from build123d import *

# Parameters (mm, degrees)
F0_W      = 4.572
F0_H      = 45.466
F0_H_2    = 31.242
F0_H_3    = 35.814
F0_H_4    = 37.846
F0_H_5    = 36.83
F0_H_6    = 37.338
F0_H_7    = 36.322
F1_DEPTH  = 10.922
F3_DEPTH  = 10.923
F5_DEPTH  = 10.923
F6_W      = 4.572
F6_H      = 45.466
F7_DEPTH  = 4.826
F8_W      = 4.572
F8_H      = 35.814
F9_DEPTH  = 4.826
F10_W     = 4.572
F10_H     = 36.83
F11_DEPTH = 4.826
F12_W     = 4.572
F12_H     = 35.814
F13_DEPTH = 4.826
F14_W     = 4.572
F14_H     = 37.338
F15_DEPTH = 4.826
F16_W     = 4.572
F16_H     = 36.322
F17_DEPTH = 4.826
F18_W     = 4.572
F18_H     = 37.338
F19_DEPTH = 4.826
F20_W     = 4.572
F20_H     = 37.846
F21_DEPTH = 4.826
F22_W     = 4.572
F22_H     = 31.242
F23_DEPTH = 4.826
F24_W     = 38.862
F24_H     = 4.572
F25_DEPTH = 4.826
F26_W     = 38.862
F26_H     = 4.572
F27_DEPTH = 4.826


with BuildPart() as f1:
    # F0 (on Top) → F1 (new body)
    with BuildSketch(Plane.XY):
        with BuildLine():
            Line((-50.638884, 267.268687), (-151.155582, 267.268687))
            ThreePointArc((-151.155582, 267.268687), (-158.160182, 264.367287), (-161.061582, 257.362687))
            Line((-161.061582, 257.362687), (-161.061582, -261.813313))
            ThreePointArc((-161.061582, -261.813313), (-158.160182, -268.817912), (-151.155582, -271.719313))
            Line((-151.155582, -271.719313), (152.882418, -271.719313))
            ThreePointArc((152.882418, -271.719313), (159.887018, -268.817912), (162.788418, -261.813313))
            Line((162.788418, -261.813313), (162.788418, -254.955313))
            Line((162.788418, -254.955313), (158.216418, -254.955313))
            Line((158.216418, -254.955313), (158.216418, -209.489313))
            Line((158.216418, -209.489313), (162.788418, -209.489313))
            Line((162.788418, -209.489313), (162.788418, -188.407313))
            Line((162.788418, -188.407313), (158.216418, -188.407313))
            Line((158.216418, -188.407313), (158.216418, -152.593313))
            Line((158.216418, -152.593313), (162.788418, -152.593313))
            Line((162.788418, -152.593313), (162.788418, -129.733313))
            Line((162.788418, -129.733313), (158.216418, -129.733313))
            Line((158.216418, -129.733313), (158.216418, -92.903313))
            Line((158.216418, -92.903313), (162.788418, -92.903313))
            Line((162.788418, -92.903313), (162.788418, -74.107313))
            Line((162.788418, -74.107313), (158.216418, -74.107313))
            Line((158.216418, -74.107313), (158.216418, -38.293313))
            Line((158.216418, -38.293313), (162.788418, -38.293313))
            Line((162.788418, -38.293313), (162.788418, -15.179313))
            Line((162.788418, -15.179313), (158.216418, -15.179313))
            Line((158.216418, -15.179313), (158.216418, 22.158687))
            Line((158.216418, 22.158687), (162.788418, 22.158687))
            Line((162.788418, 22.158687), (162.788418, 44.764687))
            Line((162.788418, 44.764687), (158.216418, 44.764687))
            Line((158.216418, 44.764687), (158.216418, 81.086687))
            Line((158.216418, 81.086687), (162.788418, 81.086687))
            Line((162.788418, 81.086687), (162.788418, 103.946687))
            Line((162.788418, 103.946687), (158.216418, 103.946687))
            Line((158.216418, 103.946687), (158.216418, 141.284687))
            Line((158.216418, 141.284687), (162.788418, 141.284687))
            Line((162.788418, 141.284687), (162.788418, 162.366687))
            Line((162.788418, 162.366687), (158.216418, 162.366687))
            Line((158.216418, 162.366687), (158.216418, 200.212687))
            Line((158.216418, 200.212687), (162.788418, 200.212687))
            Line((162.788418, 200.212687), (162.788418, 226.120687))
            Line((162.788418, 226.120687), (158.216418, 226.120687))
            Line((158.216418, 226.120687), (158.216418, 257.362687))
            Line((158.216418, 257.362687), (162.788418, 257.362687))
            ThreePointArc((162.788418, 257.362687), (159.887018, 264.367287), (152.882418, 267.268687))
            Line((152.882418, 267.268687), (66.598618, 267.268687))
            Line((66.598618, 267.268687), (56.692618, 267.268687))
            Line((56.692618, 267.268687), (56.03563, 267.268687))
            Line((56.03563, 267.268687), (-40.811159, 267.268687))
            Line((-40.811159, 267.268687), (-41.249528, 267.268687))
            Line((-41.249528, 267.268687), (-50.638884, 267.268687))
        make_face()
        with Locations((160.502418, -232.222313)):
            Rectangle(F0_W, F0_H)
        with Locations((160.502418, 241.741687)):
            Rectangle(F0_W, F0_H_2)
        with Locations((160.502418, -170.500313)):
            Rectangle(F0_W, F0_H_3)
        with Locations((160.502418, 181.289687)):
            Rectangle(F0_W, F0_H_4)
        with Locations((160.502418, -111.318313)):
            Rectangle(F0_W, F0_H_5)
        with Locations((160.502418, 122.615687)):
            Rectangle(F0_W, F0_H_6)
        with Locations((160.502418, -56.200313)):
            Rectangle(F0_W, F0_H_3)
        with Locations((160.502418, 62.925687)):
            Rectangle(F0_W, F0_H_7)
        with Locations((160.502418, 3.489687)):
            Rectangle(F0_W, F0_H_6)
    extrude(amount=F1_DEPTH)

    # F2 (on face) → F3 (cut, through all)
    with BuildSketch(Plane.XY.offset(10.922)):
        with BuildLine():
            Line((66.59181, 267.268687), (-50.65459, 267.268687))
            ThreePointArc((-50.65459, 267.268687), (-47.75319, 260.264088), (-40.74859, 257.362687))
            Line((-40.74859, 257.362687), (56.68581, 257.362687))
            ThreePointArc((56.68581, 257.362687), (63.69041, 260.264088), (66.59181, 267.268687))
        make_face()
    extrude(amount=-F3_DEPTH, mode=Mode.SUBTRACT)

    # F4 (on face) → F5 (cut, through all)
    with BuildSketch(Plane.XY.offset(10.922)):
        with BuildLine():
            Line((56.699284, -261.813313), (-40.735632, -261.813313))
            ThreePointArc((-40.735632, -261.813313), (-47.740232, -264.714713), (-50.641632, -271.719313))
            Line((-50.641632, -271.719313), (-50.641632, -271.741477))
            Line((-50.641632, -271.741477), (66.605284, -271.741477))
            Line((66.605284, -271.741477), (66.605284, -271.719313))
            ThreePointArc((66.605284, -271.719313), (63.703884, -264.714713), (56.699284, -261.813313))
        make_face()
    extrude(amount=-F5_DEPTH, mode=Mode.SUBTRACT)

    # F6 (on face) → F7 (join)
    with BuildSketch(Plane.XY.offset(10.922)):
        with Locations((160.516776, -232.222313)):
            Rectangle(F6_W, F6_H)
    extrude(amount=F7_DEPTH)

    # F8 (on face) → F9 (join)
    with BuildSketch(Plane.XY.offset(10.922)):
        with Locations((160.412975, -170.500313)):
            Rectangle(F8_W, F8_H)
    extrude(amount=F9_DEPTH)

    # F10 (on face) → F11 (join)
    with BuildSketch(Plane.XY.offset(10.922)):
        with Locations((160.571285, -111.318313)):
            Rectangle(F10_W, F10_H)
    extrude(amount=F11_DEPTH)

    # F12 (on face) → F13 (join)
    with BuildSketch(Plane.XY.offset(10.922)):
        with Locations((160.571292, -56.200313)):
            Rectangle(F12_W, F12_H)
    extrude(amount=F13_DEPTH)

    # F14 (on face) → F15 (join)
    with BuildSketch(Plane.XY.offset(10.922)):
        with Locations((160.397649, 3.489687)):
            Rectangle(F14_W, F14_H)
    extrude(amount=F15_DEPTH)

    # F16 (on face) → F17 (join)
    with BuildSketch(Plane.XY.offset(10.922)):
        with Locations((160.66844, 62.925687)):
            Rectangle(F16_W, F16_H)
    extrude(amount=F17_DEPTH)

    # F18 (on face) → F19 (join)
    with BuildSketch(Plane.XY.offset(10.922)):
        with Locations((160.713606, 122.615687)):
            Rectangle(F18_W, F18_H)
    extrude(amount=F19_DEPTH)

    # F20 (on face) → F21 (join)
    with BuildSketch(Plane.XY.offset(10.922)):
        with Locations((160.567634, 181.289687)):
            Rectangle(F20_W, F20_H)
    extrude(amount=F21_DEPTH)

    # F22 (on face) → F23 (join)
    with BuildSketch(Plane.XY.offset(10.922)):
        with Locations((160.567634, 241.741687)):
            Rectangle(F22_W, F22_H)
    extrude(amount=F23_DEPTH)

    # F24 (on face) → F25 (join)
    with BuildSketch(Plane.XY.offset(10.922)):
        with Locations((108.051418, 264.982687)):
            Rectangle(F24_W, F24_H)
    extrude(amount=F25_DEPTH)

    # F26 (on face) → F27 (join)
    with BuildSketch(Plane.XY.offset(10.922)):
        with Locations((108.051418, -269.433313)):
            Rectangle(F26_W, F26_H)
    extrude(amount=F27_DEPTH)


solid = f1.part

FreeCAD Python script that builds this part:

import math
import FreeCAD as App
import Part
import Sketcher
Q = App.Units.Quantity

doc = App.newDocument("Part")
body = doc.addObject("PartDesign::Body", "Body")

# Sketch on XY plane
sketch1 = body.newObject("Sketcher::SketchObject", "Sketch")
sketch1.AttachmentSupport = (doc.getObject("XY_Plane"), [""])
sketch1.MapMode = "FlatFace"
sketch1.addGeometry([
    Part.ArcOfCircle(Part.Circle(App.Vector(-151, 257, 0), App.Vector(0, 0, 1), 10), math.radians(90), math.radians(180)),  # 0
    Part.LineSegment(App.Vector(-161, 257, 0), App.Vector(-161, -262, 0)),  # 1
    Part.ArcOfCircle(Part.Circle(App.Vector(-151, -262, 0), App.Vector(0, 0, 1), 10), math.radians(-180), math.radians(-90)),  # 2
    Part.LineSegment(App.Vector(-151, -272, 0), App.Vector(153, -272, 0)),  # 3
    Part.ArcOfCircle(Part.Circle(App.Vector(153, -262, 0), App.Vector(0, 0, 1), 10), math.radians(-90), math.radians(0)),  # 4
    Part.LineSegment(App.Vector(163, -262, 0), App.Vector(163, 257, 0)),  # 5
    Part.ArcOfCircle(Part.Circle(App.Vector(153, 257, 0), App.Vector(0, 0, 1), 10), math.radians(0), math.radians(90)),  # 6
    Part.LineSegment(App.Vector(153, 267, 0), App.Vector(-151, 267, 0)),  # 7
], False)
sketch1.addConstraint([
    Sketcher.Constraint("Tangent", 0, 2, 1, 1),
    Sketcher.Constraint("Tangent", 1, 2, 2, 1),
    Sketcher.Constraint("Tangent", 2, 2, 3, 1),
    Sketcher.Constraint("Tangent", 3, 2, 4, 1),
    Sketcher.Constraint("Tangent", 4, 2, 5, 1),
    Sketcher.Constraint("Tangent", 5, 2, 6, 1),
    Sketcher.Constraint("Tangent", 6, 2, 7, 1),
    Sketcher.Constraint("Tangent", 7, 2, 0, 1),
    Sketcher.Constraint("Vertical", 1),
    Sketcher.Constraint("Horizontal", 3),
    Sketcher.Constraint("Vertical", 5),
    Sketcher.Constraint("Horizontal", 7),
    Sketcher.Constraint("Equal", 0, 2),
    Sketcher.Constraint("Equal", 2, 4),
    Sketcher.Constraint("Equal", 4, 6),
    Sketcher.Constraint("Radius", 0, Q("0.39 in")),
    Sketcher.Constraint("DistanceX", 3, 1, 3, 2, Q("11.97 in")),
    Sketcher.Constraint("DistanceY", 1, 2, 1, 1, Q("20.44 in")),
    Sketcher.Constraint("DistanceX", 2, 3, -1, 1, Q("151.155581 mm")),
    Sketcher.Constraint("DistanceY", -1, 1, 0, 3, Q("257.362688 mm")),
])
pad1 = body.newObject("PartDesign::Pad", "Pad")
pad1.Profile = sketch1
pad1.Length = Q("0.43 in")

# Sketch on XY plane
sketch2 = body.newObject("Sketcher::SketchObject", "Sketch001")
sketch2.AttachmentSupport = (doc.getObject("XY_Plane"), [""])
sketch2.MapMode = "FlatFace"
sketch2.AttachmentOffset = App.Placement(App.Vector(0, 0, 0.43 * 25.4), App.Rotation())
sketch2.addGeometry([
    Part.LineSegment(App.Vector(67, 267, 0), App.Vector(-51, 267, 0)),
    Part.ArcOfCircle(Part.Circle(App.Vector(-41, 267, 0), App.Vector(0, 0, 1), 10), math.radians(-180), math.radians(-90)),
    Part.LineSegment(App.Vector(-41, 257, 0), App.Vector(57, 257, 0)),
    Part.ArcOfCircle(Part.Circle(App.Vector(57, 267, 0), App.Vector(0, 0, 1), 10), math.radians(-90), math.radians(0)),
], False)
sketch2.addConstraint([
    Sketcher.Constraint("Coincident", 0, 2, 1, 1),
    Sketcher.Constraint("Tangent", 1, 2, 2, 1),
    Sketcher.Constraint("Tangent", 2, 2, 3, 1),
    Sketcher.Constraint("Coincident", 3, 2, 0, 1),
    Sketcher.Constraint("Horizontal", 0),
    Sketcher.Constraint("Horizontal", 2),
    Sketcher.Constraint("Equal", 1, 3),
    Sketcher.Constraint("Horizontal", 3, 3, 0, 2),
    Sketcher.Constraint("Radius", 1, Q("0.39 in")),
    Sketcher.Constraint("DistanceX", 0, 2, 0, 1, Q("4.616 in")),
    Sketcher.Constraint("DistanceX", 1, 3, -1, 1, Q("40.748589 mm")),
    Sketcher.Constraint("DistanceY", -1, 1, 1, 3, Q("267.268688 mm")),
])
pocket1 = body.newObject("PartDesign::Pocket", "Pocket")
pocket1.Profile = sketch2
pocket1.Type = "ThroughAll"

# Sketch on XY plane
sketch3 = body.newObject("Sketcher::SketchObject", "Sketch002")
sketch3.AttachmentSupport = (doc.getObject("XY_Plane"), [""])
sketch3.MapMode = "FlatFace"
sketch3.AttachmentOffset = App.Placement(App.Vector(0, 0, 0.43 * 25.4), App.Rotation())
sketch3.addGeometry([
    Part.LineSegment(App.Vector(56.699, -261.813, 0), App.Vector(-40.736, -261.813, 0)),  # 0
    Part.ArcOfCircle(Part.Circle(App.Vector(-40.736, -271.719, 0), App.Vector(0, 0, 1), 9.906), math.radians(90), math.radians(180)),  # 1
    Part.LineSegment(App.Vector(-50.642, -271.719, 0), App.Vector(-50.642, -271.741, 0)),  # 2
    Part.LineSegment(App.Vector(-50.642, -271.741, 0), App.Vector(66.605, -271.741, 0)),  # 3
    Part.LineSegment(App.Vector(66.605, -271.741, 0), App.Vector(66.605, -271.719, 0)),  # 4
    Part.ArcOfCircle(Part.Circle(App.Vector(56.699, -271.719, 0), App.Vector(0, 0, 1), 9.906), math.radians(0), math.radians(90)),  # 5
], False)
sketch3.addConstraint([
    Sketcher.Constraint("Tangent", 0, 2, 1, 1),
    Sketcher.Constraint("Tangent", 1, 2, 2, 1),
    Sketcher.Constraint("Coincident", 2, 2, 3, 1),
    Sketcher.Constraint("Coincident", 3, 2, 4, 1),
    Sketcher.Constraint("Tangent", 4, 2, 5, 1),
    Sketcher.Constraint("Tangent", 5, 2, 0, 1),
    Sketcher.Constraint("Horizontal", 0),
    Sketcher.Constraint("Horizontal", 3),
    Sketcher.Constraint("Equal", 1, 5),
    Sketcher.Constraint("Horizontal", 5, 3, 1, 2),
    Sketcher.Constraint("Horizontal", 1, 2, 4, 2),
    Sketcher.Constraint("Radius", 1, Q("0.39 in")),
    Sketcher.Constraint("DistanceX", 0, 2, 0, 1, Q("97.434916 mm")),
    Sketcher.Constraint("DistanceY", 2, 2, 2, 1, Q("0.022164 mm")),
    Sketcher.Constraint("DistanceX", 1, 2, -1, 1, Q("50.641632 mm")),
    Sketcher.Constraint("DistanceY", 1, 3, -1, 1, Q("271.719312 mm")),
])
pocket2 = body.newObject("PartDesign::Pocket", "Pocket001")
pocket2.Profile = sketch3
pocket2.Type = "ThroughAll"

# Sketch on XY plane
sketch4 = body.newObject("Sketcher::SketchObject", "Sketch003")
sketch4.AttachmentSupport = (doc.getObject("XY_Plane"), [""])
sketch4.MapMode = "FlatFace"
sketch4.AttachmentOffset = App.Placement(App.Vector(0, 0, 0.43 * 25.4), App.Rotation())
sketch4.addGeometry([
    Part.LineSegment(App.Vector(158.2, -209.5, 0), App.Vector(158.2, -255, 0)),
    Part.LineSegment(App.Vector(158.2, -255, 0), App.Vector(162.8, -255, 0)),
    Part.LineSegment(App.Vector(162.8, -255, 0), App.Vector(162.8, -209.5, 0)),
    Part.LineSegment(App.Vector(162.8, -209.5, 0), App.Vector(158.2, -209.5, 0)),
], False)
sketch4.addConstraint([
    Sketcher.Constraint("Coincident", 0, 2, 1, 1),
    Sketcher.Constraint("Coincident", 1, 2, 2, 1),
    Sketcher.Constraint("Coincident", 2, 2, 3, 1),
    Sketcher.Constraint("Coincident", 3, 2, 0, 1),
    Sketcher.Constraint("Vertical", 0),
    Sketcher.Constraint("Horizontal", 1),
    Sketcher.Constraint("Vertical", 2),
    Sketcher.Constraint("Horizontal", 3),
    Sketcher.Constraint("DistanceX", 1, 1, 1, 2, Q("0.18 in")),
    Sketcher.Constraint("DistanceY", 0, 2, 0, 1, Q("1.79 in")),
    Sketcher.Constraint("DistanceX", -1, 1, 0, 2, Q("158.230776 mm")),
    Sketcher.Constraint("DistanceY", 0, 2, -1, 1, Q("254.955313 mm")),
])
pad2 = body.newObject("PartDesign::Pad", "Pad001")
pad2.Profile = sketch4
pad2.Length = Q("0.19 in")

# Sketch on XY plane
sketch5 = body.newObject("Sketcher::SketchObject", "Sketch004")
sketch5.AttachmentSupport = (doc.getObject("XY_Plane"), [""])
sketch5.MapMode = "FlatFace"
sketch5.AttachmentOffset = App.Placement(App.Vector(0, 0, 0.43 * 25.4), App.Rotation())
sketch5.addGeometry([
    Part.LineSegment(App.Vector(158.1, -152.6, 0), App.Vector(158.1, -188.4, 0)),
    Part.LineSegment(App.Vector(158.1, -188.4, 0), App.Vector(162.7, -188.4, 0)),
    Part.LineSegment(App.Vector(162.7, -188.4, 0), App.Vector(162.7, -152.6, 0)),
    Part.LineSegment(App.Vector(162.7, -152.6, 0), App.Vector(158.1, -152.6, 0)),
], False)
sketch5.addConstraint([
    Sketcher.Constraint("Coincident", 0, 2, 1, 1),
    Sketcher.Constraint("Coincident", 1, 2, 2, 1),
    Sketcher.Constraint("Coincident", 2, 2, 3, 1),
    Sketcher.Constraint("Coincident", 3, 2, 0, 1),
    Sketcher.Constraint("Vertical", 0),
    Sketcher.Constraint("Horizontal", 1),
    Sketcher.Constraint("Vertical", 2),
    Sketcher.Constraint("Horizontal", 3),
    Sketcher.Constraint("DistanceX", 1, 1, 1, 2, Q("0.18 in")),
    Sketcher.Constraint("DistanceY", 0, 2, 0, 1, Q("1.41 in")),
    Sketcher.Constraint("DistanceX", -1, 1, 0, 2, Q("158.126975 mm")),
    Sketcher.Constraint("DistanceY", 0, 2, -1, 1, Q("188.407313 mm")),
])
pad3 = body.newObject("PartDesign::Pad", "Pad002")
pad3.Profile = sketch5
pad3.Length = Q("0.19 in")

# Sketch on XY plane
sketch6 = body.newObject("Sketcher::SketchObject", "Sketch005")
sketch6.AttachmentSupport = (doc.getObject("XY_Plane"), [""])
sketch6.MapMode = "FlatFace"
sketch6.AttachmentOffset = App.Placement(App.Vector(0, 0, 0.43 * 25.4), App.Rotation())
sketch6.addGeometry([
    Part.LineSegment(App.Vector(158.3, -92.9, 0), App.Vector(158.3, -129.7, 0)),
    Part.LineSegment(App.Vector(158.3, -129.7, 0), App.Vector(162.9, -129.7, 0)),
    Part.LineSegment(App.Vector(162.9, -129.7, 0), App.Vector(162.9, -92.9, 0)),
    Part.LineSegment(App.Vector(162.9, -92.9, 0), App.Vector(158.3, -92.9, 0)),
], False)
sketch6.addConstraint([
    Sketcher.Constraint("Coincident", 0, 2, 1, 1),
    Sketcher.Constraint("Coincident", 1, 2, 2, 1),
    Sketcher.Constraint("Coincident", 2, 2, 3, 1),
    Sketcher.Constraint("Coincident", 3, 2, 0, 1),
    Sketcher.Constraint("Vertical", 0),
    Sketcher.Constraint("Horizontal", 1),
    Sketcher.Constraint("Vertical", 2),
    Sketcher.Constraint("Horizontal", 3),
    Sketcher.Constraint("DistanceX", 1, 1, 1, 2, Q("0.18 in")),
    Sketcher.Constraint("DistanceY", 0, 2, 0, 1, Q("1.45 in")),
    Sketcher.Constraint("DistanceX", -1, 1, 0, 2, Q("158.285285 mm")),
    Sketcher.Constraint("DistanceY", 0, 2, -1, 1, Q("129.733313 mm")),
])
pad4 = body.newObject("PartDesign::Pad", "Pad003")
pad4.Profile = sketch6
pad4.Length = Q("0.19 in")

# Sketch on XY plane
sketch7 = body.newObject("Sketcher::SketchObject", "Sketch006")
sketch7.AttachmentSupport = (doc.getObject("XY_Plane"), [""])
sketch7.MapMode = "FlatFace"
sketch7.AttachmentOffset = App.Placement(App.Vector(0, 0, 0.43 * 25.4), App.Rotation())
sketch7.addGeometry([
    Part.LineSegment(App.Vector(158.3, -38.3, 0), App.Vector(158.3, -74.1, 0)),
    Part.LineSegment(App.Vector(158.3, -74.1, 0), App.Vector(162.9, -74.1, 0)),
    Part.LineSegment(App.Vector(162.9, -74.1, 0), App.Vector(162.9, -38.3, 0)),
    Part.LineSegment(App.Vector(162.9, -38.3, 0), App.Vector(158.3, -38.3, 0)),
], False)
sketch7.addConstraint([
    Sketcher.Constraint("Coincident", 0, 2, 1, 1),
    Sketcher.Constraint("Coincident", 1, 2, 2, 1),
    Sketcher.Constraint("Coincident", 2, 2, 3, 1),
    Sketcher.Constraint("Coincident", 3, 2, 0, 1),
    Sketcher.Constraint("Vertical", 0),
    Sketcher.Constraint("Horizontal", 1),
    Sketcher.Constraint("Vertical", 2),
    Sketcher.Constraint("Horizontal", 3),
    Sketcher.Constraint("DistanceX", 1, 1, 1, 2, Q("0.18 in")),
    Sketcher.Constraint("DistanceY", 0, 2, 0, 1, Q("1.41 in")),
    Sketcher.Constraint("DistanceX", -1, 1, 0, 2, Q("158.285292 mm")),
    Sketcher.Constraint("DistanceY", 0, 2, -1, 1, Q("74.107313 mm")),
])
pad5 = body.newObject("PartDesign::Pad", "Pad004")
pad5.Profile = sketch7
pad5.Length = Q("0.19 in")

# Sketch on XY plane
sketch8 = body.newObject("Sketcher::SketchObject", "Sketch007")
sketch8.AttachmentSupport = (doc.getObject("XY_Plane"), [""])
sketch8.MapMode = "FlatFace"
sketch8.AttachmentOffset = App.Placement(App.Vector(0, 0, 0.43 * 25.4), App.Rotation())
sketch8.addGeometry([
    Part.LineSegment(App.Vector(158.1, 22.2, 0), App.Vector(158.1, -15.2, 0)),
    Part.LineSegment(App.Vector(158.1, -15.2, 0), App.Vector(162.7, -15.2, 0)),
    Part.LineSegment(App.Vector(162.7, -15.2, 0), App.Vector(162.7, 22.2, 0)),
    Part.LineSegment(App.Vector(162.7, 22.2, 0), App.Vector(158.1, 22.2, 0)),
], False)
sketch8.addConstraint([
    Sketcher.Constraint("Coincident", 0, 2, 1, 1),
    Sketcher.Constraint("Coincident", 1, 2, 2, 1),
    Sketcher.Constraint("Coincident", 2, 2, 3, 1),
    Sketcher.Constraint("Coincident", 3, 2, 0, 1),
    Sketcher.Constraint("Vertical", 0),
    Sketcher.Constraint("Horizontal", 1),
    Sketcher.Constraint("Vertical", 2),
    Sketcher.Constraint("Horizontal", 3),
    Sketcher.Constraint("DistanceX", 1, 1, 1, 2, Q("0.18 in")),
    Sketcher.Constraint("DistanceY", 0, 2, 0, 1, Q("1.47 in")),
    Sketcher.Constraint("DistanceX", -1, 1, 0, 2, Q("158.111649 mm")),
    Sketcher.Constraint("DistanceY", 0, 2, -1, 1, Q("15.179313 mm")),
])
pad6 = body.newObject("PartDesign::Pad", "Pad005")
pad6.Profile = sketch8
pad6.Length = Q("0.19 in")

# Sketch on XY plane
sketch9 = body.newObject("Sketcher::SketchObject", "Sketch008")
sketch9.AttachmentSupport = (doc.getObject("XY_Plane"), [""])
sketch9.MapMode = "FlatFace"
sketch9.AttachmentOffset = App.Placement(App.Vector(0, 0, 0.43 * 25.4), App.Rotation())
sketch9.addGeometry([
    Part.LineSegment(App.Vector(158.4, 81.1, 0), App.Vector(158.4, 44.8, 0)),
    Part.LineSegment(App.Vector(158.4, 44.8, 0), App.Vector(163, 44.8, 0)),
    Part.LineSegment(App.Vector(163, 44.8, 0), App.Vector(163, 81.1, 0)),
    Part.LineSegment(App.Vector(163, 81.1, 0), App.Vector(158.4, 81.1, 0)),
], False)
sketch9.addConstraint([
    Sketcher.Constraint("Coincident", 0, 2, 1, 1),
    Sketcher.Constraint("Coincident", 1, 2, 2, 1),
    Sketcher.Constraint("Coincident", 2, 2, 3, 1),
    Sketcher.Constraint("Coincident", 3, 2, 0, 1),
    Sketcher.Constraint("Vertical", 0),
    Sketcher.Constraint("Horizontal", 1),
    Sketcher.Constraint("Vertical", 2),
    Sketcher.Constraint("Horizontal", 3),
    Sketcher.Constraint("DistanceX", 1, 1, 1, 2, Q("0.18 in")),
    Sketcher.Constraint("DistanceY", 0, 2, 0, 1, Q("1.43 in")),
    Sketcher.Constraint("DistanceX", -1, 1, 0, 2, Q("158.38244 mm")),
    Sketcher.Constraint("DistanceY", -1, 1, 0, 2, Q("44.764687 mm")),
])
pad7 = body.newObject("PartDesign::Pad", "Pad006")
pad7.Profile = sketch9
pad7.Length = Q("0.19 in")

# Sketch on XY plane
sketch10 = body.newObject("Sketcher::SketchObject", "Sketch009")
sketch10.AttachmentSupport = (doc.getObject("XY_Plane"), [""])
sketch10.MapMode = "FlatFace"
sketch10.AttachmentOffset = App.Placement(App.Vector(0, 0, 0.43 * 25.4), App.Rotation())
sketch10.addGeometry([
    Part.LineSegment(App.Vector(158.4, 141.3, 0), App.Vector(158.4, 103.9, 0)),
    Part.LineSegment(App.Vector(158.4, 103.9, 0), App.Vector(163, 103.9, 0)),
    Part.LineSegment(App.Vector(163, 103.9, 0), App.Vector(163, 141.3, 0)),
    Part.LineSegment(App.Vector(163, 141.3, 0), App.Vector(158.4, 141.3, 0)),
], False)
sketch10.addConstraint([
    Sketcher.Constraint("Coincident", 0, 2, 1, 1),
    Sketcher.Constraint("Coincident", 1, 2, 2, 1),
    Sketcher.Constraint("Coincident", 2, 2, 3, 1),
    Sketcher.Constraint("Coincident", 3, 2, 0, 1),
    Sketcher.Constraint("Vertical", 0),
    Sketcher.Constraint("Horizontal", 1),
    Sketcher.Constraint("Vertical", 2),
    Sketcher.Constraint("Horizontal", 3),
    Sketcher.Constraint("DistanceX", 1, 1, 1, 2, Q("0.18 in")),
    Sketcher.Constraint("DistanceY", 0, 2, 0, 1, Q("1.47 in")),
    Sketcher.Constraint("DistanceX", -1, 1, 0, 2, Q("158.427606 mm")),
    Sketcher.Constraint("DistanceY", -1, 1, 0, 2, Q("103.946687 mm")),
])
pad8 = body.newObject("PartDesign::Pad", "Pad007")
pad8.Profile = sketch10
pad8.Length = Q("0.19 in")

# Sketch on XY plane
sketch11 = body.newObject("Sketcher::SketchObject", "Sketch010")
sketch11.AttachmentSupport = (doc.getObject("XY_Plane"), [""])
sketch11.MapMode = "FlatFace"
sketch11.AttachmentOffset = App.Placement(App.Vector(0, 0, 0.43 * 25.4), App.Rotation())
sketch11.addGeometry([
    Part.LineSegment(App.Vector(158.3, 200.2, 0), App.Vector(158.3, 162.4, 0)),
    Part.LineSegment(App.Vector(158.3, 162.4, 0), App.Vector(162.9, 162.4, 0)),
    Part.LineSegment(App.Vector(162.9, 162.4, 0), App.Vector(162.9, 200.2, 0)),
    Part.LineSegment(App.Vector(162.9, 200.2, 0), App.Vector(158.3, 200.2, 0)),
], False)
sketch11.addConstraint([
    Sketcher.Constraint("Coincident", 0, 2, 1, 1),
    Sketcher.Constraint("Coincident", 1, 2, 2, 1),
    Sketcher.Constraint("Coincident", 2, 2, 3, 1),
    Sketcher.Constraint("Coincident", 3, 2, 0, 1),
    Sketcher.Constraint("Vertical", 0),
    Sketcher.Constraint("Horizontal", 1),
    Sketcher.Constraint("Vertical", 2),
    Sketcher.Constraint("Horizontal", 3),
    Sketcher.Constraint("DistanceX", 1, 1, 1, 2, Q("0.18 in")),
    Sketcher.Constraint("DistanceY", 0, 2, 0, 1, Q("1.49 in")),
    Sketcher.Constraint("DistanceX", -1, 1, 0, 2, Q("158.281634 mm")),
    Sketcher.Constraint("DistanceY", -1, 1, 0, 2, Q("162.366687 mm")),
])
pad9 = body.newObject("PartDesign::Pad", "Pad008")
pad9.Profile = sketch11
pad9.Length = Q("0.19 in")

# Sketch on XY plane
sketch12 = body.newObject("Sketcher::SketchObject", "Sketch011")
sketch12.AttachmentSupport = (doc.getObject("XY_Plane"), [""])
sketch12.MapMode = "FlatFace"
sketch12.AttachmentOffset = App.Placement(App.Vector(0, 0, 0.43 * 25.4), App.Rotation())
sketch12.addGeometry([
    Part.LineSegment(App.Vector(158.3, 257.4, 0), App.Vector(158.3, 226.1, 0)),
    Part.LineSegment(App.Vector(158.3, 226.1, 0), App.Vector(162.9, 226.1, 0)),
    Part.LineSegment(App.Vector(162.9, 226.1, 0), App.Vector(162.9, 257.4, 0)),
    Part.LineSegment(App.Vector(162.9, 257.4, 0), App.Vector(158.3, 257.4, 0)),
], False)
sketch12.addConstraint([
    Sketcher.Constraint("Coincident", 0, 2, 1, 1),
    Sketcher.Constraint("Coincident", 1, 2, 2, 1),
    Sketcher.Constraint("Coincident", 2, 2, 3, 1),
    Sketcher.Constraint("Coincident", 3, 2, 0, 1),
    Sketcher.Constraint("Vertical", 0),
    Sketcher.Constraint("Horizontal", 1),
    Sketcher.Constraint("Vertical", 2),
    Sketcher.Constraint("Horizontal", 3),
    Sketcher.Constraint("DistanceX", 1, 1, 1, 2, Q("0.18 in")),
    Sketcher.Constraint("DistanceY", 0, 2, 0, 1, Q("1.23 in")),
    Sketcher.Constraint("DistanceX", -1, 1, 0, 2, Q("158.281634 mm")),
    Sketcher.Constraint("DistanceY", -1, 1, 0, 2, Q("226.120687 mm")),
])
pad10 = body.newObject("PartDesign::Pad", "Pad009")
pad10.Profile = sketch12
pad10.Length = Q("0.19 in")

# Sketch on XY plane
sketch13 = body.newObject("Sketcher::SketchObject", "Sketch012")
sketch13.AttachmentSupport = (doc.getObject("XY_Plane"), [""])
sketch13.MapMode = "FlatFace"
sketch13.AttachmentOffset = App.Placement(App.Vector(0, 0, 0.43 * 25.4), App.Rotation())
sketch13.addGeometry([
    Part.LineSegment(App.Vector(88.6, 267.3, 0), App.Vector(88.6, 262.7, 0)),
    Part.LineSegment(App.Vector(88.6, 262.7, 0), App.Vector(127.5, 262.7, 0)),
    Part.LineSegment(App.Vector(127.5, 262.7, 0), App.Vector(127.5, 267.3, 0)),
    Part.LineSegment(App.Vector(127.5, 267.3, 0), App.Vector(88.6, 267.3, 0)),
], False)
sketch13.addConstraint([
    Sketcher.Constraint("Coincident", 0, 2, 1, 1),
    Sketcher.Constraint("Coincident", 1, 2, 2, 1),
    Sketcher.Constraint("Coincident", 2, 2, 3, 1),
    Sketcher.Constraint("Coincident", 3, 2, 0, 1),
    Sketcher.Constraint("Vertical", 0),
    Sketcher.Constraint("Horizontal", 1),
    Sketcher.Constraint("Vertical", 2),
    Sketcher.Constraint("Horizontal", 3),
    Sketcher.Constraint("DistanceX", 1, 1, 1, 2, Q("1.53 in")),
    Sketcher.Constraint("DistanceY", 0, 2, 0, 1, Q("0.18 in")),
    Sketcher.Constraint("DistanceX", -1, 1, 0, 2, Q("88.620418 mm")),
    Sketcher.Constraint("DistanceY", -1, 1, 0, 2, Q("262.696687 mm")),
])
pad11 = body.newObject("PartDesign::Pad", "Pad010")
pad11.Profile = sketch13
pad11.Length = Q("0.19 in")

# Sketch on XY plane
sketch14 = body.newObject("Sketcher::SketchObject", "Sketch013")
sketch14.AttachmentSupport = (doc.getObject("XY_Plane"), [""])
sketch14.MapMode = "FlatFace"
sketch14.AttachmentOffset = App.Placement(App.Vector(0, 0, 0.43 * 25.4), App.Rotation())
sketch14.addGeometry([
    Part.LineSegment(App.Vector(88.6, -267.1, 0), App.Vector(88.6, -271.7, 0)),
    Part.LineSegment(App.Vector(88.6, -271.7, 0), App.Vector(127.5, -271.7, 0)),
    Part.LineSegment(App.Vector(127.5, -271.7, 0), App.Vector(127.5, -267.1, 0)),
    Part.LineSegment(App.Vector(127.5, -267.1, 0), App.Vector(88.6, -267.1, 0)),
], False)
sketch14.addConstraint([
    Sketcher.Constraint("Coincident", 0, 2, 1, 1),
    Sketcher.Constraint("Coincident", 1, 2, 2, 1),
    Sketcher.Constraint("Coincident", 2, 2, 3, 1),
    Sketcher.Constraint("Coincident", 3, 2, 0, 1),
    Sketcher.Constraint("Vertical", 0),
    Sketcher.Constraint("Horizontal", 1),
    Sketcher.Constraint("Vertical", 2),
    Sketcher.Constraint("Horizontal", 3),
    Sketcher.Constraint("DistanceX", 1, 1, 1, 2, Q("1.53 in")),
    Sketcher.Constraint("DistanceY", 0, 2, 0, 1, Q("0.18 in")),
    Sketcher.Constraint("DistanceX", -1, 1, 0, 2, Q("88.620418 mm")),
    Sketcher.Constraint("DistanceY", 0, 2, -1, 1, Q("271.719313 mm")),
])
pad12 = body.newObject("PartDesign::Pad", "Pad011")
pad12.Profile = sketch14
pad12.Length = Q("0.19 in")

doc.recompute()
